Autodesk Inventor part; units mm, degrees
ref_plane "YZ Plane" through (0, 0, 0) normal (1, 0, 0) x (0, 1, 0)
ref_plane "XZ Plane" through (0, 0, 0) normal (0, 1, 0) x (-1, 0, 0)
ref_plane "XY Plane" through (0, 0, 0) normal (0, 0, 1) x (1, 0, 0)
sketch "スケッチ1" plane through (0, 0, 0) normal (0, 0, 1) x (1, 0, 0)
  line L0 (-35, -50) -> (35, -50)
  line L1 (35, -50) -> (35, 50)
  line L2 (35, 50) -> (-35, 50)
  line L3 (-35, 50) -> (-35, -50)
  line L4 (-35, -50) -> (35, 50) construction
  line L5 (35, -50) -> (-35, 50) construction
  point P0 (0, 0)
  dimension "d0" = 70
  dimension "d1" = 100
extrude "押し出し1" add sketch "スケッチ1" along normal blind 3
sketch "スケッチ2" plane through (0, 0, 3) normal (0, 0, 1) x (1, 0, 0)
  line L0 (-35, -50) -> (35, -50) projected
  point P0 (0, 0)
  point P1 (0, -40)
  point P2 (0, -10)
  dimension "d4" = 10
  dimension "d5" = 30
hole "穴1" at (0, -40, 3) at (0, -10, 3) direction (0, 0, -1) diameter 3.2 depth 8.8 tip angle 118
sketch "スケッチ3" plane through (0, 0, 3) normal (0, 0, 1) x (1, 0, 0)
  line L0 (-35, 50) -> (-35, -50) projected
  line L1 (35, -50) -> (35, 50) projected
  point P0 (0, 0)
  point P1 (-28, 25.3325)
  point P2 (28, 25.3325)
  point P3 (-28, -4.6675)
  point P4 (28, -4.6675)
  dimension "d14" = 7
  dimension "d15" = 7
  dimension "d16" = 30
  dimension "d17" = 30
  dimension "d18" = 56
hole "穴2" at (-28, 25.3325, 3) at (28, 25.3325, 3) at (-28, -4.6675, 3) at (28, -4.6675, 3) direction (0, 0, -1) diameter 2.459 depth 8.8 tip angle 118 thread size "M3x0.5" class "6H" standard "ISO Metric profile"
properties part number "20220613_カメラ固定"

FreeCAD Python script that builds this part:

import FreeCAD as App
import Part
import Sketcher
from FreeCAD import Vector
Q = App.Units.Quantity

doc = App.newDocument("Part")
body = doc.addObject("PartDesign::Body", "Body")

sketch1 = body.newObject("Sketcher::SketchObject", "Sketch")
sketch1.AttachmentSupport = (doc.getObject("XY_Plane"), [""])
sketch1.MapMode = "FlatFace"
sketch1.addGeometry([
    Part.LineSegment(Vector(-35, 50, 0), Vector(-35, -50, 0)),
    Part.LineSegment(Vector(-35, -50, 0), Vector(35, -50, 0)),
    Part.LineSegment(Vector(35, -50, 0), Vector(35, 50, 0)),
    Part.LineSegment(Vector(35, 50, 0), Vector(-35, 50, 0)),
], False)
sketch1.addConstraint([
    Sketcher.Constraint("Coincident", 0, 2, 1, 1),
    Sketcher.Constraint("Coincident", 1, 2, 2, 1),
    Sketcher.Constraint("Coincident", 2, 2, 3, 1),
    Sketcher.Constraint("Coincident", 3, 2, 0, 1),
    Sketcher.Constraint("Vertical", 0),
    Sketcher.Constraint("Horizontal", 1),
    Sketcher.Constraint("Vertical", 2),
    Sketcher.Constraint("Horizontal", 3),
    Sketcher.Constraint("Symmetric", 0, 2, 2, 2, -1, 1),
    Sketcher.Constraint("DistanceX", 1, 1, 1, 2, Q("70 mm")),
    Sketcher.Constraint("DistanceY", 0, 2, 0, 1, Q("100 mm")),
])
pad1 = body.newObject("PartDesign::Pad", "Pad")
pad1.Profile = sketch1
pad1.Length = 3

sketch2 = body.newObject("Sketcher::SketchObject", "Sketch001")
sketch2.AttachmentSupport = (doc.getObject("XY_Plane"), [""])
sketch2.MapMode = "FlatFace"
sketch2.AttachmentOffset = App.Placement(Vector(0, 0, 3), App.Rotation())
sketch2.addGeometry([
    Part.Circle(Vector(0, -40, 0), Vector(0, 0, 1), 1.6),
    Part.Circle(Vector(0, -10, 0), Vector(0, 0, 1), 1.6),
], False)
sketch2.addConstraint([
    Sketcher.Constraint("Equal", 0, 1),
    Sketcher.Constraint("PointOnObject", 0, 3, -2),
    Sketcher.Constraint("PointOnObject", 1, 3, -2),
    Sketcher.Constraint("Diameter", 0, Q("3.2 mm")),
    Sketcher.Constraint("DistanceY", 0, 3, -1, 1, Q("40 mm")),
    Sketcher.Constraint("DistanceY", 1, 3, -1, 1, Q("10 mm")),
])
doc.recompute()
hole = body.newObject("PartDesign::Hole", "Hole")
hole.Profile = sketch2
hole.ThreadType = "None"
hole.Diameter = 3.2
hole.DepthType = "Dimension"
hole.Depth = 8.8
hole.DrillPoint = "Angled"
hole.DrillPointAngle = 118

sketch3 = body.newObject("Sketcher::SketchObject", "Sketch002")
sketch3.AttachmentSupport = (doc.getObject("XY_Plane"), [""])
sketch3.MapMode = "FlatFace"
sketch3.AttachmentOffset = App.Placement(Vector(0, 0, 3), App.Rotation())
sketch3.addGeometry([
    Part.Circle(Vector(-28, 25.3, 0), Vector(0, 0, 1), 1.2),
    Part.Circle(Vector(28, 25.3, 0), Vector(0, 0, 1), 1.2),
    Part.Circle(Vector(-28, -4.7, 0), Vector(0, 0, 1), 1.2),
    Part.Circle(Vector(28, -4.7, 0), Vector(0, 0, 1), 1.2),
], False)
sketch3.addConstraint([
    Sketcher.Constraint("Equal", 0, 1),
    Sketcher.Constraint("Equal", 1, 2),
    Sketcher.Constraint("Equal", 2, 3),
    Sketcher.Constraint("Symmetric", 0, 3, 1, 3, -2),
    Sketcher.Constraint("Symmetric", 2, 3, 3, 3, -2),
    Sketcher.Constraint("Vertical", 0, 3, 2, 3),
    Sketcher.Constraint("Diameter", 0, Q("2.459 mm")),
    Sketcher.Constraint("DistanceX", 0, 3, -1, 1, Q("28 mm")),
    Sketcher.Constraint("DistanceY", 2, 3, 0, 3, Q("30 mm")),
    Sketcher.Constraint("DistanceY", -1, 1, 0, 3, Q("25.3325 mm")),
])
doc.recompute()
hole2 = body.newObject("PartDesign::Hole", "Hole001")
hole2.Profile = sketch3
hole2.ThreadType = "None"
hole2.Diameter = 2.459
hole2.DepthType = "Dimension"
hole2.Depth = 8.8
hole2.DrillPoint = "Angled"
hole2.DrillPointAngle = 118

doc.recompute()
